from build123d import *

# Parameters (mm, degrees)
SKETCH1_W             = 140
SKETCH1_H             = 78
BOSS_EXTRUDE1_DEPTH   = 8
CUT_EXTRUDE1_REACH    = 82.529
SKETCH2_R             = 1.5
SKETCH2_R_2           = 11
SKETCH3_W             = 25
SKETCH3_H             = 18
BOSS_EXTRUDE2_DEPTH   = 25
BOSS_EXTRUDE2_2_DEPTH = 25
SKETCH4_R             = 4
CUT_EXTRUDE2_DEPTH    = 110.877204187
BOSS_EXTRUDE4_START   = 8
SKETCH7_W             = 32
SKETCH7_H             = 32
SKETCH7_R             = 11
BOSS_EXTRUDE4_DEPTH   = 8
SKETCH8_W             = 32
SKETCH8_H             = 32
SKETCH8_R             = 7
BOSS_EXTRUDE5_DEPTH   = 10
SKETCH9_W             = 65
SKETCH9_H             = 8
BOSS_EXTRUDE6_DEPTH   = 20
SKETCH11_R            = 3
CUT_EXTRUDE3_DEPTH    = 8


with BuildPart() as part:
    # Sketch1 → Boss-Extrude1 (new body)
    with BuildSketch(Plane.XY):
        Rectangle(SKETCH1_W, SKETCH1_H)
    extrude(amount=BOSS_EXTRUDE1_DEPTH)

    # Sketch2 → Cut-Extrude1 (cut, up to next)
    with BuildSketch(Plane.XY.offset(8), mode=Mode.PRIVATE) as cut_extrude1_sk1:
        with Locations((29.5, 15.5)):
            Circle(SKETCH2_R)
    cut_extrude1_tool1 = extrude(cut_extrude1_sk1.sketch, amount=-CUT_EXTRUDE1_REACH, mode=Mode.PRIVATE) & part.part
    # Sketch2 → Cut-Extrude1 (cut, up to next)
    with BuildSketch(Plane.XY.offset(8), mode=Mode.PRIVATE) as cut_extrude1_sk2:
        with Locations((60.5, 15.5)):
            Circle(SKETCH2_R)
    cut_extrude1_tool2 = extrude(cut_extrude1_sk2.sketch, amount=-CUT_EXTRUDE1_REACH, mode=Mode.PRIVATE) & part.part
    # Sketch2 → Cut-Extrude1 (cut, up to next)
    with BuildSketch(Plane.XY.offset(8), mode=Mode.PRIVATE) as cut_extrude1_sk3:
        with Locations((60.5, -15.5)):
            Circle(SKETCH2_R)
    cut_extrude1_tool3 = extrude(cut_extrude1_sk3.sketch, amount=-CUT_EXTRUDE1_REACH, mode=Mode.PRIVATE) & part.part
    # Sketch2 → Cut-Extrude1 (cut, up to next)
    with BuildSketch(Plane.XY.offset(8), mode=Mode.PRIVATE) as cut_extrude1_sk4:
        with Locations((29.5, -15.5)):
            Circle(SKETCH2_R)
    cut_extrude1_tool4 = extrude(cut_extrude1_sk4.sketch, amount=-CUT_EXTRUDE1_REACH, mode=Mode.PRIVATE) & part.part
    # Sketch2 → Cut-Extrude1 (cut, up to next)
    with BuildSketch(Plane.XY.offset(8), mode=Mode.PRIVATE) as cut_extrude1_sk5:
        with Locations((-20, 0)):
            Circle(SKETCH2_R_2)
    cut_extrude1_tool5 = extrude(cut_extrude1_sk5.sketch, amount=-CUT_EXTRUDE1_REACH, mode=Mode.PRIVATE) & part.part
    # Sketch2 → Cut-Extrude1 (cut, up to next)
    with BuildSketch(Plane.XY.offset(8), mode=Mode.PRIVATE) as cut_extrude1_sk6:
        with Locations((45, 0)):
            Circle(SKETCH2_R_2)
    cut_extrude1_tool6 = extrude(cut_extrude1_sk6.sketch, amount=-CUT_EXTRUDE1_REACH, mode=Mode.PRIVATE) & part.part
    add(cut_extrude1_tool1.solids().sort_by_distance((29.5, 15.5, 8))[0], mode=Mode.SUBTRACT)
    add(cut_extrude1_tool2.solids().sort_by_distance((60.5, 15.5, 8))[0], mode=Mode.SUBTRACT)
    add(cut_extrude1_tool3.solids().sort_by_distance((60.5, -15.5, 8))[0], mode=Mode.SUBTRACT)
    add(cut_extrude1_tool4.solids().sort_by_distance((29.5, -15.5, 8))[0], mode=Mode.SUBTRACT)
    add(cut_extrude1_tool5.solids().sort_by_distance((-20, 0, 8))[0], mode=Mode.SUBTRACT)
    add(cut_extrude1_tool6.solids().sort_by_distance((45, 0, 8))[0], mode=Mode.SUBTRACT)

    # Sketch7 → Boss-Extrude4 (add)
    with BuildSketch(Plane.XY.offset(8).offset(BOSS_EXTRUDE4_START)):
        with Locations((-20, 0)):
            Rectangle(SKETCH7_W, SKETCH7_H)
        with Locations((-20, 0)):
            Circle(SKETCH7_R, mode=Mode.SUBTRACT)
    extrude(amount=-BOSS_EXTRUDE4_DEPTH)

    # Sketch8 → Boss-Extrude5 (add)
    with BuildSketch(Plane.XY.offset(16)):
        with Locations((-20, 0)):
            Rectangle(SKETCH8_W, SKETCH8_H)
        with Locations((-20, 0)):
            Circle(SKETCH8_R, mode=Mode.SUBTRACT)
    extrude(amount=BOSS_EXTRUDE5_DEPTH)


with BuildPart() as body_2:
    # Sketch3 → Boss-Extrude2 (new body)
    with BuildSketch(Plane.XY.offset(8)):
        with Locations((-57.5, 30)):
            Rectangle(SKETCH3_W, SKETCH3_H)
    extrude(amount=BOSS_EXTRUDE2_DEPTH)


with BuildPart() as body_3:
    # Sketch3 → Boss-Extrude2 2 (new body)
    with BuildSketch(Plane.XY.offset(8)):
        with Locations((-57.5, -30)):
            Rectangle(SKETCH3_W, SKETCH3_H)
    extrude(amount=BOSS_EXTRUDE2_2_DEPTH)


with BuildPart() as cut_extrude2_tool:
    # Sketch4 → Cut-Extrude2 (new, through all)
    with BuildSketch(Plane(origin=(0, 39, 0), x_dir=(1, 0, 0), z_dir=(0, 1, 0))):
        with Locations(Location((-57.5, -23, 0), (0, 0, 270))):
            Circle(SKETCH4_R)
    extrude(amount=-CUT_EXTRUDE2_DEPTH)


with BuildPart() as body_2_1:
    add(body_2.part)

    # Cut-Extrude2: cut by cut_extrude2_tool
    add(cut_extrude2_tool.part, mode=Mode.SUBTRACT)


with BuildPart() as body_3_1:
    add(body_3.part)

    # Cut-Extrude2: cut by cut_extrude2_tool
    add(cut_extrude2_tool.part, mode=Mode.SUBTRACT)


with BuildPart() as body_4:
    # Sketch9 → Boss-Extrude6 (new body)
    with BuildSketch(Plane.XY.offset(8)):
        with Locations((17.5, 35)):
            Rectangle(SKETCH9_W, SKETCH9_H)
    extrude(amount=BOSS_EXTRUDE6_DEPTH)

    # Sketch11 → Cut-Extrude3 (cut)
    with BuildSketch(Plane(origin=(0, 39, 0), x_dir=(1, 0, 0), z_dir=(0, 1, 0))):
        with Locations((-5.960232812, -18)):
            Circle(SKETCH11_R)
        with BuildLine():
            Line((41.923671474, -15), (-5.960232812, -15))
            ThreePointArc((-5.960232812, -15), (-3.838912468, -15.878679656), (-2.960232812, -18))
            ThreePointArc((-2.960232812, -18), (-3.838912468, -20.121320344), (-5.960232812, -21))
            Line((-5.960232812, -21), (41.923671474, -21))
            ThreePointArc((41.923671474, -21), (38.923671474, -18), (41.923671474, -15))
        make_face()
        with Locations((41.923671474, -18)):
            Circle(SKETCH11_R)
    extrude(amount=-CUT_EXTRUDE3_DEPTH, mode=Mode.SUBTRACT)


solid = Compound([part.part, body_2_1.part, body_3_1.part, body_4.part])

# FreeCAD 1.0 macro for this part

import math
import FreeCAD as App
import Part
import Sketcher
from FreeCAD import Vector

doc = App.newDocument("Part")
params = doc.addObject("Spreadsheet::Sheet", "Params")
for row, (alias, value) in enumerate([
    ("sketch1_width", "140 mm"),
    ("sketch1_height", "78 mm"),
    ("pad1_length", "8 mm"),
    ("sketch2_diameter", "3 mm"),
    ("sketch3_diameter", "3 mm"),
    ("sketch4_diameter", "3 mm"),
    ("sketch5_diameter", "3 mm"),
    ("sketch6_diameter", "22 mm"),
    ("sketch7_diameter", "22 mm"),
    ("sketch8_diameter", "22 mm"),
    ("sketch8_width", "32 mm"),
    ("pad2_length", "8 mm"),
    ("sketch9_diameter", "14 mm"),
    ("sketch9_width", "32 mm"),
    ("pad3_length", "10 mm"),
    ("sketch10_width", "25 mm"),
    ("sketch10_height", "18 mm"),
    ("pad4_length", "25 mm"),
    ("sketch11_width", "25 mm"),
    ("sketch11_height", "18 mm"),
    ("pad5_length", "25 mm"),
    ("sketch12_diameter", "8 mm"),
    ("pad6_length", "110.877204 mm"),
    ("sketch13_width", "65 mm"),
    ("sketch13_height", "8 mm"),
    ("pad7_length", "20 mm"),
    ("sketch14_radius", "3 mm"),
    ("pocket7_length", "8 mm"),
], start=1):
    params.set(f"A{row}", alias)
    params.set(f"B{row}", "=" + value)
    params.setAlias(f"B{row}", alias)

body = doc.addObject("PartDesign::Body", "Body")

# Sketch on XY plane
sketch1 = body.newObject("Sketcher::SketchObject", "Sketch")
sketch1.AttachmentSupport = (doc.getObject("XY_Plane"), [""])
sketch1.MapMode = "FlatFace"
sketch1.addGeometry(Part.LineSegment(Vector(-70, 39, 0), Vector(-70, -39, 0)), False)
sketch1.addGeometry(Part.LineSegment(Vector(-70, -39, 0), Vector(70, -39, 0)), False)
sketch1.addGeometry(Part.LineSegment(Vector(70, -39, 0), Vector(70, 39, 0)), False)
sketch1.addGeometry(Part.LineSegment(Vector(70, 39, 0), Vector(-70, 39, 0)), False)
sketch1.addConstraint(Sketcher.Constraint("Coincident", 0, 2, 1, 1))
sketch1.addConstraint(Sketcher.Constraint("Coincident", 1, 2, 2, 1))
sketch1.addConstraint(Sketcher.Constraint("Coincident", 2, 2, 3, 1))
sketch1.addConstraint(Sketcher.Constraint("Coincident", 3, 2, 0, 1))
sketch1.addConstraint(Sketcher.Constraint("Vertical", 0))
sketch1.addConstraint(Sketcher.Constraint("Horizontal", 1))
sketch1.addConstraint(Sketcher.Constraint("Vertical", 2))
sketch1.addConstraint(Sketcher.Constraint("Horizontal", 3))
sketch1.addConstraint(Sketcher.Constraint("Symmetric", 0, 2, 2, 2, -1, 1))
sketch1.addConstraint(Sketcher.Constraint("DistanceX", 1, 1, 1, 2, 140.0))
sketch1.addConstraint(Sketcher.Constraint("DistanceY", 0, 2, 0, 1, 78.0))
sketch1.setExpression("Constraints[9]", "Params.sketch1_width")
sketch1.setExpression("Constraints[10]", "Params.sketch1_height")
pad1 = body.newObject("PartDesign::Pad", "Pad")
pad1.Profile = sketch1
pad1.setExpression("Length", "Params.pad1_length")

# Sketch on XY plane
sketch2 = body.newObject("Sketcher::SketchObject", "Sketch001")
sketch2.AttachmentSupport = (doc.getObject("XY_Plane"), [""])
sketch2.MapMode = "FlatFace"
sketch2.AttachmentOffset = App.Placement(Vector(0, 0, 8), App.Rotation())
sketch2.addGeometry(Part.Circle(Vector(29.5, 15.5, 0), Vector(0, 0, 1), 1.5), False)
sketch2.addConstraint(Sketcher.Constraint("Diameter", 0, 3.0))
sketch2.addConstraint(Sketcher.Constraint("DistanceX", -1, 1, 0, 3, 29.5))
sketch2.addConstraint(Sketcher.Constraint("DistanceY", -1, 1, 0, 3, 15.5))
sketch2.setExpression("Constraints[0]", "Params.sketch2_diameter")
pocket1 = body.newObject("PartDesign::Pocket", "Pocket")
pocket1.Profile = sketch2
pocket1.Type = "UpToFirst"

# Sketch on XY plane
sketch3 = body.newObject("Sketcher::SketchObject", "Sketch002")
sketch3.AttachmentSupport = (doc.getObject("XY_Plane"), [""])
sketch3.MapMode = "FlatFace"
sketch3.AttachmentOffset = App.Placement(Vector(0, 0, 8), App.Rotation())
sketch3.addGeometry(Part.Circle(Vector(60.5, 15.5, 0), Vector(0, 0, 1), 1.5), False)
sketch3.addConstraint(Sketcher.Constraint("Diameter", 0, 3.0))
sketch3.addConstraint(Sketcher.Constraint("DistanceX", -1, 1, 0, 3, 60.5))
sketch3.addConstraint(Sketcher.Constraint("DistanceY", -1, 1, 0, 3, 15.5))
sketch3.setExpression("Constraints[0]", "Params.sketch3_diameter")
pocket2 = body.newObject("PartDesign::Pocket", "Pocket001")
pocket2.Profile = sketch3
pocket2.Type = "UpToFirst"

# Sketch on XY plane
sketch4 = body.newObject("Sketcher::SketchObject", "Sketch003")
sketch4.AttachmentSupport = (doc.getObject("XY_Plane"), [""])
sketch4.MapMode = "FlatFace"
sketch4.AttachmentOffset = App.Placement(Vector(0, 0, 8), App.Rotation())
sketch4.addGeometry(Part.Circle(Vector(60.5, -15.5, 0), Vector(0, 0, 1), 1.5), False)
sketch4.addConstraint(Sketcher.Constraint("Diameter", 0, 3.0))
sketch4.addConstraint(Sketcher.Constraint("DistanceX", -1, 1, 0, 3, 60.5))
sketch4.addConstraint(Sketcher.Constraint("DistanceY", 0, 3, -1, 1, 15.5))
sketch4.setExpression("Constraints[0]", "Params.sketch4_diameter")
pocket3 = body.newObject("PartDesign::Pocket", "Pocket002")
pocket3.Profile = sketch4
pocket3.Type = "UpToFirst"

# Sketch on XY plane
sketch5 = body.newObject("Sketcher::SketchObject", "Sketch004")
sketch5.AttachmentSupport = (doc.getObject("XY_Plane"), [""])
sketch5.MapMode = "FlatFace"
sketch5.AttachmentOffset = App.Placement(Vector(0, 0, 8), App.Rotation())
sketch5.addGeometry(Part.Circle(Vector(29.5, -15.5, 0), Vector(0, 0, 1), 1.5), False)
sketch5.addConstraint(Sketcher.Constraint("Diameter", 0, 3.0))
sketch5.addConstraint(Sketcher.Constraint("DistanceX", -1, 1, 0, 3, 29.5))
sketch5.addConstraint(Sketcher.Constraint("DistanceY", 0, 3, -1, 1, 15.5))
sketch5.setExpression("Constraints[0]", "Params.sketch5_diameter")
pocket4 = body.newObject("PartDesign::Pocket", "Pocket003")
pocket4.Profile = sketch5
pocket4.Type = "UpToFirst"

# Sketch on XY plane
sketch6 = body.newObject("Sketcher::SketchObject", "Sketch005")
sketch6.AttachmentSupport = (doc.getObject("XY_Plane"), [""])
sketch6.MapMode = "FlatFace"
sketch6.AttachmentOffset = App.Placement(Vector(0, 0, 8), App.Rotation())
sketch6.addGeometry(Part.Circle(Vector(-20, 0, 0), Vector(0, 0, 1), 11), False)
sketch6.addConstraint(Sketcher.Constraint("PointOnObject", 0, 3, -1))
sketch6.addConstraint(Sketcher.Constraint("Diameter", 0, 22.0))
sketch6.addConstraint(Sketcher.Constraint("DistanceX", 0, 3, -1, 1, 20.0))
sketch6.setExpression("Constraints[1]", "Params.sketch6_diameter")
pocket5 = body.newObject("PartDesign::Pocket", "Pocket004")
pocket5.Profile = sketch6
pocket5.Type = "UpToFirst"

# Sketch on XY plane
sketch7 = body.newObject("Sketcher::SketchObject", "Sketch006")
sketch7.AttachmentSupport = (doc.getObject("XY_Plane"), [""])
sketch7.MapMode = "FlatFace"
sketch7.AttachmentOffset = App.Placement(Vector(0, 0, 8), App.Rotation())
sketch7.addGeometry(Part.Circle(Vector(45, 0, 0), Vector(0, 0, 1), 11), False)
sketch7.addConstraint(Sketcher.Constraint("PointOnObject", 0, 3, -1))
sketch7.addConstraint(Sketcher.Constraint("Diameter", 0, 22.0))
sketch7.addConstraint(Sketcher.Constraint("DistanceX", -1, 1, 0, 3, 45.0))
sketch7.setExpression("Constraints[1]", "Params.sketch7_diameter")
pocket6 = body.newObject("PartDesign::Pocket", "Pocket005")
pocket6.Profile = sketch7
pocket6.Type = "UpToFirst"

# Sketch on XY plane
sketch8 = body.newObject("Sketcher::SketchObject", "Sketch007")
sketch8.AttachmentSupport = (doc.getObject("XY_Plane"), [""])
sketch8.MapMode = "FlatFace"
sketch8.AttachmentOffset = App.Placement(Vector(0, 0, 16), App.Rotation())
sketch8.addGeometry(Part.LineSegment(Vector(-36, 16, 0), Vector(-36, -16, 0)), False)
sketch8.addGeometry(Part.LineSegment(Vector(-36, -16, 0), Vector(-4, -16, 0)), False)
sketch8.addGeometry(Part.LineSegment(Vector(-4, -16, 0), Vector(-4, 16, 0)), False)
sketch8.addGeometry(Part.LineSegment(Vector(-4, 16, 0), Vector(-36, 16, 0)), False)
sketch8.addGeometry(Part.Circle(Vector(-20, 0, 0), Vector(0, 0, 1), 11), False)
sketch8.addConstraint(Sketcher.Constraint("Coincident", 0, 2, 1, 1))
sketch8.addConstraint(Sketcher.Constraint("Coincident", 1, 2, 2, 1))
sketch8.addConstraint(Sketcher.Constraint("Coincident", 2, 2, 3, 1))
sketch8.addConstraint(Sketcher.Constraint("Coincident", 3, 2, 0, 1))
sketch8.addConstraint(Sketcher.Constraint("Vertical", 0))
sketch8.addConstraint(Sketcher.Constraint("Horizontal", 1))
sketch8.addConstraint(Sketcher.Constraint("Vertical", 2))
sketch8.addConstraint(Sketcher.Constraint("Horizontal", 3))
sketch8.addConstraint(Sketcher.Constraint("PointOnObject", 4, 3, -1))
sketch8.addConstraint(Sketcher.Constraint("Equal", 3, 0))
sketch8.addConstraint(Sketcher.Constraint("Diameter", 4, 22.0))
sketch8.addConstraint(Sketcher.Constraint("DistanceX", 1, 1, 1, 2, 32.0))
sketch8.addConstraint(Sketcher.Constraint("DistanceX", 4, 3, -1, 1, 20.0))
sketch8.addConstraint(Sketcher.Constraint("DistanceX", 0, 2, -1, 1, 36.0))
sketch8.addConstraint(Sketcher.Constraint("DistanceY", 0, 2, -1, 1, 16.0))
sketch8.setExpression("Constraints[10]", "Params.sketch8_diameter")
sketch8.setExpression("Constraints[11]", "Params.sketch8_width")
pad2 = body.newObject("PartDesign::Pad", "Pad001")
pad2.Profile = sketch8
pad2.setExpression("Length", "Params.pad2_length")
pad2.Reversed = True

# Sketch on XY plane
sketch9 = body.newObject("Sketcher::SketchObject", "Sketch008")
sketch9.AttachmentSupport = (doc.getObject("XY_Plane"), [""])
sketch9.MapMode = "FlatFace"
sketch9.AttachmentOffset = App.Placement(Vector(0, 0, 16), App.Rotation())
sketch9.addGeometry(Part.LineSegment(Vector(-36, 16, 0), Vector(-36, -16, 0)), False)
sketch9.addGeometry(Part.LineSegment(Vector(-36, -16, 0), Vector(-4, -16, 0)), False)
sketch9.addGeometry(Part.LineSegment(Vector(-4, -16, 0), Vector(-4, 16, 0)), False)
sketch9.addGeometry(Part.LineSegment(Vector(-4, 16, 0), Vector(-36, 16, 0)), False)
sketch9.addGeometry(Part.Circle(Vector(-20, 0, 0), Vector(0, 0, 1), 7), False)
sketch9.addConstraint(Sketcher.Constraint("Coincident", 0, 2, 1, 1))
sketch9.addConstraint(Sketcher.Constraint("Coincident", 1, 2, 2, 1))
sketch9.addConstraint(Sketcher.Constraint("Coincident", 2, 2, 3, 1))
sketch9.addConstraint(Sketcher.Constraint("Coincident", 3, 2, 0, 1))
sketch9.addConstraint(Sketcher.Constraint("Vertical", 0))
sketch9.addConstraint(Sketcher.Constraint("Horizontal", 1))
sketch9.addConstraint(Sketcher.Constraint("Vertical", 2))
sketch9.addConstraint(Sketcher.Constraint("Horizontal", 3))
sketch9.addConstraint(Sketcher.Constraint("PointOnObject", 4, 3, -1))
sketch9.addConstraint(Sketcher.Constraint("Equal", 3, 0))
sketch9.addConstraint(Sketcher.Constraint("Diameter", 4, 14.0))
sketch9.addConstraint(Sketcher.Constraint("DistanceX", 1, 1, 1, 2, 32.0))
sketch9.addConstraint(Sketcher.Constraint("DistanceX", 4, 3, -1, 1, 20.0))
sketch9.addConstraint(Sketcher.Constraint("DistanceX", 0, 2, -1, 1, 36.0))
sketch9.addConstraint(Sketcher.Constraint("DistanceY", 0, 2, -1, 1, 16.0))
sketch9.setExpression("Constraints[10]", "Params.sketch9_diameter")
sketch9.setExpression("Constraints[11]", "Params.sketch9_width")
pad3 = body.newObject("PartDesign::Pad", "Pad002")
pad3.Profile = sketch9
pad3.setExpression("Length", "Params.pad3_length")
body2 = doc.addObject("PartDesign::Body", "Body001")

# Sketch on XY plane
sketch10 = body2.newObject("Sketcher::SketchObject", "Sketch009")
sketch10.AttachmentSupport = (doc.getObject("XY_Plane001"), [""])
sketch10.MapMode = "FlatFace"
sketch10.AttachmentOffset = App.Placement(Vector(0, 0, 8), App.Rotation())
sketch10.addGeometry(Part.LineSegment(Vector(-70, 39, 0), Vector(-70, 21, 0)), False)
sketch10.addGeometry(Part.LineSegment(Vector(-70, 21, 0), Vector(-45, 21, 0)), False)
sketch10.addGeometry(Part.LineSegment(Vector(-45, 21, 0), Vector(-45, 39, 0)), False)
sketch10.addGeometry(Part.LineSegment(Vector(-45, 39, 0), Vector(-70, 39, 0)), False)
sketch10.addConstraint(Sketcher.Constraint("Coincident", 0, 2, 1, 1))
sketch10.addConstraint(Sketcher.Constraint("Coincident", 1, 2, 2, 1))
sketch10.addConstraint(Sketcher.Constraint("Coincident", 2, 2, 3, 1))
sketch10.addConstraint(Sketcher.Constraint("Coincident", 3, 2, 0, 1))
sketch10.addConstraint(Sketcher.Constraint("Vertical", 0))
sketch10.addConstraint(Sketcher.Constraint("Horizontal", 1))
sketch10.addConstraint(Sketcher.Constraint("Vertical", 2))
sketch10.addConstraint(Sketcher.Constraint("Horizontal", 3))
sketch10.addConstraint(Sketcher.Constraint("DistanceX", 1, 1, 1, 2, 25.0))
sketch10.addConstraint(Sketcher.Constraint("DistanceY", 0, 2, 0, 1, 18.0))
sketch10.addConstraint(Sketcher.Constraint("DistanceX", 0, 2, -1, 1, 70.0))
sketch10.addConstraint(Sketcher.Constraint("DistanceY", -1, 1, 0, 2, 21.0))
sketch10.setExpression("Constraints[8]", "Params.sketch10_width")
sketch10.setExpression("Constraints[9]", "Params.sketch10_height")
pad4 = body2.newObject("PartDesign::Pad", "Pad003")
pad4.Profile = sketch10
pad4.setExpression("Length", "Params.pad4_length")
body3 = doc.addObject("PartDesign::Body", "Body002")

# Sketch on XY plane
sketch11 = body3.newObject("Sketcher::SketchObject", "Sketch010")
sketch11.AttachmentSupport = (doc.getObject("XY_Plane002"), [""])
sketch11.MapMode = "FlatFace"
sketch11.AttachmentOffset = App.Placement(Vector(0, 0, 8), App.Rotation())
sketch11.addGeometry(Part.LineSegment(Vector(-70, -21, 0), Vector(-70, -39, 0)), False)
sketch11.addGeometry(Part.LineSegment(Vector(-70, -39, 0), Vector(-45, -39, 0)), False)
sketch11.addGeometry(Part.LineSegment(Vector(-45, -39, 0), Vector(-45, -21, 0)), False)
sketch11.addGeometry(Part.LineSegment(Vector(-45, -21, 0), Vector(-70, -21, 0)), False)
sketch11.addConstraint(Sketcher.Constraint("Coincident", 0, 2, 1, 1))
sketch11.addConstraint(Sketcher.Constraint("Coincident", 1, 2, 2, 1))
sketch11.addConstraint(Sketcher.Constraint("Coincident", 2, 2, 3, 1))
sketch11.addConstraint(Sketcher.Constraint("Coincident", 3, 2, 0, 1))
sketch11.addConstraint(Sketcher.Constraint("Vertical", 0))
sketch11.addConstraint(Sketcher.Constraint("Horizontal", 1))
sketch11.addConstraint(Sketcher.Constraint("Vertical", 2))
sketch11.addConstraint(Sketcher.Constraint("Horizontal", 3))
sketch11.addConstraint(Sketcher.Constraint("DistanceX", 1, 1, 1, 2, 25.0))
sketch11.addConstraint(Sketcher.Constraint("DistanceY", 0, 2, 0, 1, 18.0))
sketch11.addConstraint(Sketcher.Constraint("DistanceX", 0, 2, -1, 1, 70.0))
sketch11.addConstraint(Sketcher.Constraint("DistanceY", 0, 2, -1, 1, 39.0))
sketch11.setExpression("Constraints[8]", "Params.sketch11_width")
sketch11.setExpression("Constraints[9]", "Params.sketch11_height")
pad5 = body3.newObject("PartDesign::Pad", "Pad004")
pad5.Profile = sketch11
pad5.setExpression("Length", "Params.pad5_length")
body4 = doc.addObject("PartDesign::Body", "Body003")

# Sketch on XZ plane
sketch12 = body4.newObject("Sketcher::SketchObject", "Sketch011")
sketch12.AttachmentSupport = (doc.getObject("XZ_Plane003"), [""])
sketch12.MapMode = "FlatFace"
sketch12.AttachmentOffset = App.Placement(Vector(0, 0, -39), App.Rotation())
sketch12.addGeometry(Part.Circle(Vector(-57.5, 23, 0), Vector(0, 0, 1), 4), False)
sketch12.addConstraint(Sketcher.Constraint("Diameter", 0, 8.0))
sketch12.addConstraint(Sketcher.Constraint("DistanceY", -1, 1, 0, 3, 23.0))
sketch12.addConstraint(Sketcher.Constraint("DistanceX", 0, 3, -1, 1, 57.5))
sketch12.setExpression("Constraints[0]", "Params.sketch12_diameter")
pad6 = body4.newObject("PartDesign::Pad", "Pad005")
pad6.Profile = sketch12
pad6.setExpression("Length", "Params.pad6_length")
doc.recompute()

body5 = doc.addObject("PartDesign::Body", "Body004")
body5.BaseFeature = body4
boolean = body2.newObject("PartDesign::Boolean", "Boolean")
boolean.Type = "Cut"
boolean.addObjects([body5])
doc.recompute()

boolean2 = body3.newObject("PartDesign::Boolean", "Boolean001")
boolean2.Type = "Cut"
boolean2.addObjects([body4])
body6 = doc.addObject("PartDesign::Body", "Body005")

# Sketch on XY plane
sketch13 = body6.newObject("Sketcher::SketchObject", "Sketch012")
sketch13.AttachmentSupport = (doc.getObject("XY_Plane005"), [""])
sketch13.MapMode = "FlatFace"
sketch13.AttachmentOffset = App.Placement(Vector(0, 0, 8), App.Rotation())
sketch13.addGeometry(Part.LineSegment(Vector(-15, 39, 0), Vector(-15, 31, 0)), False)
sketch13.addGeometry(Part.LineSegment(Vector(-15, 31, 0), Vector(50, 31, 0)), False)
sketch13.addGeometry(Part.LineSegment(Vector(50, 31, 0), Vector(50, 39, 0)), False)
sketch13.addGeometry(Part.LineSegment(Vector(50, 39, 0), Vector(-15, 39, 0)), False)
sketch13.addConstraint(Sketcher.Constraint("Coincident", 0, 2, 1, 1))
sketch13.addConstraint(Sketcher.Constraint("Coincident", 1, 2, 2, 1))
sketch13.addConstraint(Sketcher.Constraint("Coincident", 2, 2, 3, 1))
sketch13.addConstraint(Sketcher.Constraint("Coincident", 3, 2, 0, 1))
sketch13.addConstraint(Sketcher.Constraint("Vertical", 0))
sketch13.addConstraint(Sketcher.Constraint("Horizontal", 1))
sketch13.addConstraint(Sketcher.Constraint("Vertical", 2))
sketch13.addConstraint(Sketcher.Constraint("Horizontal", 3))
sketch13.addConstraint(Sketcher.Constraint("DistanceX", 1, 1, 1, 2, 65.0))
sketch13.addConstraint(Sketcher.Constraint("DistanceY", 0, 2, 0, 1, 8.0))
sketch13.addConstraint(Sketcher.Constraint("DistanceX", 0, 2, -1, 1, 15.0))
sketch13.addConstraint(Sketcher.Constraint("DistanceY", -1, 1, 0, 2, 31.0))
sketch13.setExpression("Constraints[8]", "Params.sketch13_width")
sketch13.setExpression("Constraints[9]", "Params.sketch13_height")
pad7 = body6.newObject("PartDesign::Pad", "Pad006")
pad7.Profile = sketch13
pad7.setExpression("Length", "Params.pad7_length")

# Sketch on XZ plane
sketch14 = body6.newObject("Sketcher::SketchObject", "Sketch013")
sketch14.AttachmentSupport = (doc.getObject("XZ_Plane005"), [""])
sketch14.MapMode = "FlatFace"
sketch14.AttachmentOffset = App.Placement(Vector(0, 0, -39), App.Rotation())
sketch14.addGeometry(Part.ArcOfCircle(Part.Circle(Vector(-6, 18, 0), Vector(0, 0, 1), 3), math.radians(90), math.radians(270)), False)
sketch14.addGeometry(Part.LineSegment(Vector(-6, 21, 0), Vector(41.9, 21, 0)), False)
sketch14.addGeometry(Part.ArcOfCircle(Part.Circle(Vector(41.9, 18, 0), Vector(0, 0, 1), 3), math.radians(-90), math.radians(90)), False)
sketch14.addGeometry(Part.LineSegment(Vector(41.9, 15, 0), Vector(-6, 15, 0)), False)
sketch14.addConstraint(Sketcher.Constraint("Tangent", 0, 1, 1, 1))
sketch14.addConstraint(Sketcher.Constraint("Tangent", 1, 2, 2, 2))
sketch14.addConstraint(Sketcher.Constraint("Tangent", 2, 1, 3, 1))
sketch14.addConstraint(Sketcher.Constraint("Tangent", 3, 2, 0, 2))
sketch14.addConstraint(Sketcher.Constraint("Horizontal", 1))
sketch14.addConstraint(Sketcher.Constraint("Horizontal", 3))
sketch14.addConstraint(Sketcher.Constraint("Radius", 0, 3.0))
sketch14.addConstraint(Sketcher.Constraint("DistanceY", -1, 1, 0, 3, 18.0))
sketch14.addConstraint(Sketcher.Constraint("DistanceX", 1, 1, 1, 2, 47.883904))
sketch14.addConstraint(Sketcher.Constraint("DistanceX", -1, 1, 2, 3, 41.923671))
sketch14.setExpression("Constraints[6]", "Params.sketch14_radius")
pocket7 = body6.newObject("PartDesign::Pocket", "Pocket006")
pocket7.Profile = sketch14
pocket7.setExpression("Length", "Params.pocket7_length")
pocket7.Reversed = True

doc.recompute()
